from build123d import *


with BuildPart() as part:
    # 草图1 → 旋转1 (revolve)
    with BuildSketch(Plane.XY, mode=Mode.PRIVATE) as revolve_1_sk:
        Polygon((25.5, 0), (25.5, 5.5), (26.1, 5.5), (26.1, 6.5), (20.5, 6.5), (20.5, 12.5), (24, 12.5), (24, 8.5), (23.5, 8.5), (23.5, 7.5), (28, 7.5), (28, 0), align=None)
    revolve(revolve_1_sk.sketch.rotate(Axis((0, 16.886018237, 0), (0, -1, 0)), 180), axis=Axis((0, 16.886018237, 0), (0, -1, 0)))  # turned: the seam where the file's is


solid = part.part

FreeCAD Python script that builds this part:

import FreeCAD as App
import Part
import Sketcher


def add_polygon(sketch, points):
    """Adds a closed chain of lines whose ends are joined by coincident constraints."""
    first, n = sketch.GeometryCount, len(points)
    for a, b in zip(points, points[1:] + points[:1]):
        sketch.addGeometry(Part.LineSegment(App.Vector(*a, 0), App.Vector(*b, 0)), False)
    for i in range(n):
        sketch.addConstraint(Sketcher.Constraint("Coincident", first + i, 2, first + (i + 1) % n, 1))

doc = App.newDocument("Part")
params = doc.addObject("Spreadsheet::Sheet", "Params")
for row, (alias, value) in enumerate([
    ("sketch1_height", "1 mm"),
    ("sketch1_height2", "4 mm"),
    ("sketch1_height3", "6 mm"),
    ("sketch1_width", "2.5 mm"),
    ("sketch1_width2", "4.5 mm"),
    ("revolution_angle", "360 deg"),
], start=1):
    params.set(f"A{row}", alias)
    params.set(f"B{row}", "=" + value)
    params.setAlias(f"B{row}", alias)

body = doc.addObject("PartDesign::Body", "Body")

# Sketch on XY plane
sketch1 = body.newObject("Sketcher::SketchObject", "Sketch")
sketch1.AttachmentSupport = (doc.getObject("XY_Plane"), [""])
sketch1.MapMode = "FlatFace"
add_polygon(sketch1, [(25.5, 5.5), (25.5, 0), (28, 0), (28, 7.5), (23.5, 7.5), (23.5, 8.5), (24, 8.5), (24, 12.5), (20.5, 12.5), (20.5, 6.5), (26.1, 6.5), (26.1, 5.5)])  # lines 0-11
sketch1.addConstraint([
    Sketcher.Constraint("Vertical", 0),
    Sketcher.Constraint("Horizontal", 1),
    Sketcher.Constraint("Vertical", 2),
    Sketcher.Constraint("Horizontal", 3),
    Sketcher.Constraint("Vertical", 4),
    Sketcher.Constraint("Horizontal", 5),
    Sketcher.Constraint("Vertical", 6),
    Sketcher.Constraint("Horizontal", 7),
    Sketcher.Constraint("Vertical", 8),
    Sketcher.Constraint("Horizontal", 9),
    Sketcher.Constraint("Vertical", 10),
    Sketcher.Constraint("Horizontal", 11),
    Sketcher.Constraint("PointOnObject", 0, 2, -1),
    Sketcher.Constraint("Equal", 4, 10),
    Sketcher.Constraint("DistanceY", 4, 1, 4, 2, 1.0),
    Sketcher.Constraint("DistanceY", 6, 1, 6, 2, 4.0),
    Sketcher.Constraint("DistanceY", 8, 2, 8, 1, 6.0),
    Sketcher.Constraint("DistanceX", 1, 1, 1, 2, 2.5),
    Sketcher.Constraint("DistanceX", 3, 2, 3, 1, 4.5),
    Sketcher.Constraint("DistanceX", 5, 1, 5, 2, 0.5),
    Sketcher.Constraint("DistanceX", 7, 2, 7, 1, 3.5),
    Sketcher.Constraint("DistanceX", 9, 1, 9, 2, 5.6),
    Sketcher.Constraint("DistanceY", 0, 2, 0, 1, 5.5),
    Sketcher.Constraint("DistanceX", -1, 1, 1, 2, 28.0),
])
sketch1.setExpression("Constraints[26]", "Params.sketch1_height")
sketch1.setExpression("Constraints[27]", "Params.sketch1_height2")
sketch1.setExpression("Constraints[28]", "Params.sketch1_height3")
sketch1.setExpression("Constraints[29]", "Params.sketch1_width")
sketch1.setExpression("Constraints[30]", "Params.sketch1_width2")
revolution = body.newObject("PartDesign::Revolution", "Revolution")
revolution.Profile = sketch1
revolution.ReferenceAxis = (sketch1, ["V_Axis"])
revolution.setExpression("Angle", "Params.revolution_angle")

doc.recompute()
